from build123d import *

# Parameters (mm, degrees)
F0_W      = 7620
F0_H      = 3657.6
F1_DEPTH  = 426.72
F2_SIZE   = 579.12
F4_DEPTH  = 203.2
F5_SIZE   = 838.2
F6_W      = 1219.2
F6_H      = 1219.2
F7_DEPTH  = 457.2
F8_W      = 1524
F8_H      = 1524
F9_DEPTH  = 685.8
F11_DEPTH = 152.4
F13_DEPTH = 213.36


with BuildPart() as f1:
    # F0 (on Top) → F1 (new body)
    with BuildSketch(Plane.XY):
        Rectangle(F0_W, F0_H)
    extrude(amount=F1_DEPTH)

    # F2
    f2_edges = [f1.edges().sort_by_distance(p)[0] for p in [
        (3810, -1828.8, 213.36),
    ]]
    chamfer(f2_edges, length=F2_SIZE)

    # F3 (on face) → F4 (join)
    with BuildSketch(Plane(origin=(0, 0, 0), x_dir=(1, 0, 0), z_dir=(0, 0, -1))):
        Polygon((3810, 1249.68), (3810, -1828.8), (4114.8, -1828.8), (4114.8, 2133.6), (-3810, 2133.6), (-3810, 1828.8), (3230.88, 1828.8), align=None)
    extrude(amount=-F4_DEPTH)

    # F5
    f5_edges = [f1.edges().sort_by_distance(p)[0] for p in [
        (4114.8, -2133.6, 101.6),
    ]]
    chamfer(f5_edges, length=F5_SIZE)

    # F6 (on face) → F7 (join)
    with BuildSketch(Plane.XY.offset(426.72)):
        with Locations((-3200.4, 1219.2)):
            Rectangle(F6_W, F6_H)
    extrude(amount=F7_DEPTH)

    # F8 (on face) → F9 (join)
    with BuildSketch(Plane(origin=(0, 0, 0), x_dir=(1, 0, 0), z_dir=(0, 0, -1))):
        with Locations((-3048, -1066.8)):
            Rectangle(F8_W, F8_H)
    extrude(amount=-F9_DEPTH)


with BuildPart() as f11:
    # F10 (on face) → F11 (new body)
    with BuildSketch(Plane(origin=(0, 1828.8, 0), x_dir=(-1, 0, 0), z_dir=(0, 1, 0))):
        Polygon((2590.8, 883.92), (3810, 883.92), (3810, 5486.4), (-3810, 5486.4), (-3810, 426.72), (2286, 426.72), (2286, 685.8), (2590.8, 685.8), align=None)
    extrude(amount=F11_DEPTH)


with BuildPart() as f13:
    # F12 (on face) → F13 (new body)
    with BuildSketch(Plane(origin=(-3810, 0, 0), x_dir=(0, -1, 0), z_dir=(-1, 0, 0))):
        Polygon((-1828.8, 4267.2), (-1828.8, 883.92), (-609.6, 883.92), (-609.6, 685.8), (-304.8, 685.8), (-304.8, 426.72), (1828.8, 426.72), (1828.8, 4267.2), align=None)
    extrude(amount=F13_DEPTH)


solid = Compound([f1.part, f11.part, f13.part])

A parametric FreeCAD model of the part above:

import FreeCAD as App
import Part
import Sketcher
Q = App.Units.Quantity


def edges_at(feature, points):
    """Names of the edges that pass closest to the given points."""
    edges = feature.Shape.Edges
    near = lambda p: min(range(len(edges)), key=lambda i: edges[i].distToShape(Part.Vertex(*p))[0])
    return sorted({f"Edge{near(p) + 1}" for p in points})


def add_polygon(sketch, points):
    """Adds a closed chain of lines whose ends are joined by coincident constraints."""
    first, n = sketch.GeometryCount, len(points)
    for a, b in zip(points, points[1:] + points[:1]):
        sketch.addGeometry(Part.LineSegment(App.Vector(*a, 0), App.Vector(*b, 0)), False)
    for i in range(n):
        sketch.addConstraint(Sketcher.Constraint("Coincident", first + i, 2, first + (i + 1) % n, 1))

doc = App.newDocument("Part")
params = doc.addObject("Spreadsheet::Sheet", "Params")
for row, (alias, value) in enumerate([
    ("sketch1_width", "300 in"),
    ("sketch1_height", "144 in"),
    ("pad1_length", "16.8 in"),
    ("chamfer_size", "22.8 in"),
    ("sketch2_width", "12 in"),
    ("sketch2_width2", "312 in"),
    ("sketch2_height", "156 in"),
    ("sketch2_width3", "277.2 in"),
    ("sketch2_height2", "121.2 in"),
    ("pad2_length", "8 in"),
    ("chamfer2_size", "33 in"),
    ("sketch3_width", "48 in"),
    ("pad3_length", "18 in"),
    ("sketch4_width", "60 in"),
    ("pad4_length", "27 in"),
    ("sketch5_width", "48 in"),
    ("sketch5_width2", "300 in"),
    ("sketch5_width3", "240 in"),
    ("sketch5_height", "181.2 in"),
    ("sketch5_height2", "199.2 in"),
    ("pad5_length", "6 in"),
    ("sketch6_width", "48 in"),
    ("sketch6_width2", "12 in"),
    ("sketch6_width3", "84 in"),
    ("sketch6_height", "133.2 in"),
    ("sketch6_height2", "7.8 in"),
    ("pad6_length", "8.4 in"),
], start=1):
    params.set(f"A{row}", alias)
    params.set(f"B{row}", "=" + value)
    params.setAlias(f"B{row}", alias)

body = doc.addObject("PartDesign::Body", "Body")

# Sketch on XY plane
sketch1 = doc.addObject("Sketcher::SketchObject", "Sketch")
body.addObject(sketch1)
sketch1.AttachmentSupport = (doc.XY_Plane, [""])
sketch1.MapMode = "FlatFace"
add_polygon(sketch1, [(-3810, 1829), (-3810, -1829), (3810, -1829), (3810, 1829)])  # lines 0-3
sketch1.addConstraint([
    Sketcher.Constraint("Vertical", 0),
    Sketcher.Constraint("Horizontal", 1),
    Sketcher.Constraint("Vertical", 2),
    Sketcher.Constraint("Horizontal", 3),
    Sketcher.Constraint("Symmetric", 0, 2, 2, 2, -1, 1),
    Sketcher.Constraint("DistanceX", 1, 1, 1, 2, Q("300 in")),
    Sketcher.Constraint("DistanceY", 0, 2, 0, 1, Q("144 in")),
])
sketch1.setExpression("Constraints[9]", "Params.sketch1_width")
sketch1.setExpression("Constraints[10]", "Params.sketch1_height")
pad1 = doc.addObject("PartDesign::Pad", "Pad")
body.addObject(pad1)
pad1.Profile = sketch1
pad1.setExpression("Length", "Params.pad1_length")
doc.recompute()

chamfer = doc.addObject("PartDesign::Chamfer", "Chamfer")
body.addObject(chamfer)
chamfer.Base = (pad1, edges_at(pad1, [(3810, -1828.8, 213.36)]))
chamfer.setExpression("Size", "Params.chamfer_size")

# Sketch on XY plane
sketch2 = doc.addObject("Sketcher::SketchObject", "Sketch001")
body.addObject(sketch2)
sketch2.AttachmentSupport = (doc.XY_Plane, [""])
sketch2.MapMode = "FlatFace"
add_polygon(sketch2, [(3810, -1250), (3810, 1829), (4115, 1829), (4115, -2134), (-3810, -2134), (-3810, -1829), (3231, -1829)])  # lines 0-6
sketch2.addConstraint([
    Sketcher.Constraint("Vertical", 0),
    Sketcher.Constraint("Horizontal", 1),
    Sketcher.Constraint("Vertical", 2),
    Sketcher.Constraint("Horizontal", 3),
    Sketcher.Constraint("Vertical", 4),
    Sketcher.Constraint("Horizontal", 5),
    Sketcher.Constraint("Symmetric", 0, 2, 4, 2, -1, 1),
    Sketcher.Constraint("Equal", 1, 4),
    Sketcher.Constraint("DistanceX", 1, 1, 1, 2, Q("12 in")),
    Sketcher.Constraint("DistanceX", 3, 2, 3, 1, Q("312 in")),
    Sketcher.Constraint("DistanceY", 2, 2, 2, 1, Q("156 in")),
    Sketcher.Constraint("DistanceX", 5, 1, 5, 2, Q("277.2 in")),
    Sketcher.Constraint("DistanceY", 0, 1, 0, 2, Q("121.2 in")),
])
sketch2.setExpression("Constraints[15]", "Params.sketch2_width")
sketch2.setExpression("Constraints[16]", "Params.sketch2_width2")
sketch2.setExpression("Constraints[17]", "Params.sketch2_height")
sketch2.setExpression("Constraints[18]", "Params.sketch2_width3")
sketch2.setExpression("Constraints[19]", "Params.sketch2_height2")
pad2 = doc.addObject("PartDesign::Pad", "Pad001")
body.addObject(pad2)
pad2.Profile = sketch2
pad2.setExpression("Length", "Params.pad2_length")
doc.recompute()

chamfer2 = doc.addObject("PartDesign::Chamfer", "Chamfer001")
body.addObject(chamfer2)
chamfer2.Base = (pad2, edges_at(pad2, [(4114.8, -2133.6, 101.6)]))
chamfer2.setExpression("Size", "Params.chamfer2_size")

# Sketch on XY plane
sketch3 = doc.addObject("Sketcher::SketchObject", "Sketch002")
body.addObject(sketch3)
sketch3.AttachmentSupport = (doc.XY_Plane, [""])
sketch3.MapMode = "FlatFace"
sketch3.AttachmentOffset = App.Placement(App.Vector(0, 0, 16.8 * 25.4), App.Rotation())
add_polygon(sketch3, [(-3810, 1829), (-3810, 610), (-2591, 610), (-2591, 1829)])  # lines 0-3
sketch3.addConstraint([
    Sketcher.Constraint("Vertical", 0),
    Sketcher.Constraint("Horizontal", 1),
    Sketcher.Constraint("Vertical", 2),
    Sketcher.Constraint("Horizontal", 3),
    Sketcher.Constraint("Equal", 3, 0),
    Sketcher.Constraint("DistanceX", 1, 1, 1, 2, Q("48 in")),
    Sketcher.Constraint("DistanceX", 0, 2, -1, 1, Q("150 in")),
    Sketcher.Constraint("DistanceY", -1, 1, 0, 2, Q("24 in")),
])
sketch3.setExpression("Constraints[9]", "Params.sketch3_width")
pad3 = doc.addObject("PartDesign::Pad", "Pad002")
body.addObject(pad3)
pad3.Profile = sketch3
pad3.setExpression("Length", "Params.pad3_length")

# Sketch on XY plane
sketch4 = doc.addObject("Sketcher::SketchObject", "Sketch003")
body.addObject(sketch4)
sketch4.AttachmentSupport = (doc.XY_Plane, [""])
sketch4.MapMode = "FlatFace"
add_polygon(sketch4, [(-3810, 305), (-3810, 1829), (-2286, 1829), (-2286, 305)])  # lines 0-3
sketch4.addConstraint([
    Sketcher.Constraint("Vertical", 0),
    Sketcher.Constraint("Horizontal", 1),
    Sketcher.Constraint("Vertical", 2),
    Sketcher.Constraint("Horizontal", 3),
    Sketcher.Constraint("Equal", 3, 0),
    Sketcher.Constraint("DistanceX", 1, 1, 1, 2, Q("60 in")),
    Sketcher.Constraint("DistanceX", 0, 2, -1, 1, Q("150 in")),
    Sketcher.Constraint("DistanceY", -1, 1, 0, 2, Q("72 in")),
])
sketch4.setExpression("Constraints[9]", "Params.sketch4_width")
pad4 = doc.addObject("PartDesign::Pad", "Pad003")
body.addObject(pad4)
pad4.Profile = sketch4
pad4.setExpression("Length", "Params.pad4_length")
body2 = doc.addObject("PartDesign::Body", "Body001")

# Sketch on XZ plane
sketch5 = doc.addObject("Sketcher::SketchObject", "Sketch004")
body2.addObject(sketch5)
sketch5.AttachmentSupport = (doc.getObject("XZ_Plane001"), [""])
sketch5.MapMode = "FlatFace"
sketch5.AttachmentOffset = App.Placement(App.Vector(0, 0, -72 * 25.4), App.Rotation())
add_polygon(sketch5, [(-2591, 884), (-3810, 884), (-3810, 5486), (3810, 5486), (3810, 427), (-2286, 427), (-2286, 686), (-2591, 686)])  # lines 0-7
sketch5.addConstraint([
    Sketcher.Constraint("Horizontal", 0),
    Sketcher.Constraint("Vertical", 1),
    Sketcher.Constraint("Horizontal", 2),
    Sketcher.Constraint("Vertical", 3),
    Sketcher.Constraint("Horizontal", 4),
    Sketcher.Constraint("Vertical", 5),
    Sketcher.Constraint("Horizontal", 6),
    Sketcher.Constraint("Vertical", 7),
    Sketcher.Constraint("DistanceX", 0, 2, 0, 1, Q("48 in")),
    Sketcher.Constraint("DistanceX", 2, 1, 2, 2, Q("300 in")),
    Sketcher.Constraint("DistanceX", 4, 2, 4, 1, Q("240 in")),
    Sketcher.Constraint("DistanceY", 1, 1, 1, 2, Q("181.2 in")),
    Sketcher.Constraint("DistanceY", 3, 2, 3, 1, Q("199.2 in")),
    Sketcher.Constraint("DistanceY", 5, 1, 5, 2, Q("10.2 in")),
    Sketcher.Constraint("DistanceX", 0, 2, -1, 1, Q("150 in")),
    Sketcher.Constraint("DistanceY", -1, 1, 1, 2, Q("216 in")),
])
sketch5.setExpression("Constraints[16]", "Params.sketch5_width")
sketch5.setExpression("Constraints[17]", "Params.sketch5_width2")
sketch5.setExpression("Constraints[18]", "Params.sketch5_width3")
sketch5.setExpression("Constraints[19]", "Params.sketch5_height")
sketch5.setExpression("Constraints[20]", "Params.sketch5_height2")
pad5 = doc.addObject("PartDesign::Pad", "Pad004")
body2.addObject(pad5)
pad5.Profile = sketch5
pad5.setExpression("Length", "Params.pad5_length")
pad5.Reversed = True
body3 = doc.addObject("PartDesign::Body", "Body002")

# Sketch on YZ plane
sketch6 = doc.addObject("Sketcher::SketchObject", "Sketch005")
body3.addObject(sketch6)
sketch6.AttachmentSupport = (doc.getObject("YZ_Plane002"), [""])
sketch6.MapMode = "FlatFace"
sketch6.AttachmentOffset = App.Placement(App.Vector(0, 0, -150 * 25.4), App.Rotation())
add_polygon(sketch6, [(1829, 4267), (1829, 884), (610, 884), (610, 686), (305, 686), (305, 427), (-1829, 427), (-1829, 4267)])  # lines 0-7
sketch6.addConstraint([
    Sketcher.Constraint("Vertical", 0),
    Sketcher.Constraint("Horizontal", 1),
    Sketcher.Constraint("Vertical", 2),
    Sketcher.Constraint("Horizontal", 3),
    Sketcher.Constraint("Vertical", 4),
    Sketcher.Constraint("Horizontal", 5),
    Sketcher.Constraint("Vertical", 6),
    Sketcher.Constraint("Horizontal", 7),
    Sketcher.Constraint("DistanceX", 1, 2, 1, 1, Q("48 in")),
    Sketcher.Constraint("DistanceX", 3, 2, 3, 1, Q("12 in")),
    Sketcher.Constraint("DistanceX", 5, 2, 5, 1, Q("84 in")),
    Sketcher.Constraint("DistanceY", 0, 2, 0, 1, Q("133.2 in")),
    Sketcher.Constraint("DistanceY", 2, 2, 2, 1, Q("7.8 in")),
    Sketcher.Constraint("DistanceY", 4, 2, 4, 1, Q("10.2 in")),
    Sketcher.Constraint("DistanceX", -1, 1, 0, 2, Q("72 in")),
    Sketcher.Constraint("DistanceY", -1, 1, 2, 2, Q("27 in")),
])
sketch6.setExpression("Constraints[16]", "Params.sketch6_width")
sketch6.setExpression("Constraints[17]", "Params.sketch6_width2")
sketch6.setExpression("Constraints[18]", "Params.sketch6_width3")
sketch6.setExpression("Constraints[19]", "Params.sketch6_height")
sketch6.setExpression("Constraints[20]", "Params.sketch6_height2")
pad6 = doc.addObject("PartDesign::Pad", "Pad005")
body3.addObject(pad6)
pad6.Profile = sketch6
pad6.setExpression("Length", "Params.pad6_length")
pad6.Reversed = True

doc.recompute()
